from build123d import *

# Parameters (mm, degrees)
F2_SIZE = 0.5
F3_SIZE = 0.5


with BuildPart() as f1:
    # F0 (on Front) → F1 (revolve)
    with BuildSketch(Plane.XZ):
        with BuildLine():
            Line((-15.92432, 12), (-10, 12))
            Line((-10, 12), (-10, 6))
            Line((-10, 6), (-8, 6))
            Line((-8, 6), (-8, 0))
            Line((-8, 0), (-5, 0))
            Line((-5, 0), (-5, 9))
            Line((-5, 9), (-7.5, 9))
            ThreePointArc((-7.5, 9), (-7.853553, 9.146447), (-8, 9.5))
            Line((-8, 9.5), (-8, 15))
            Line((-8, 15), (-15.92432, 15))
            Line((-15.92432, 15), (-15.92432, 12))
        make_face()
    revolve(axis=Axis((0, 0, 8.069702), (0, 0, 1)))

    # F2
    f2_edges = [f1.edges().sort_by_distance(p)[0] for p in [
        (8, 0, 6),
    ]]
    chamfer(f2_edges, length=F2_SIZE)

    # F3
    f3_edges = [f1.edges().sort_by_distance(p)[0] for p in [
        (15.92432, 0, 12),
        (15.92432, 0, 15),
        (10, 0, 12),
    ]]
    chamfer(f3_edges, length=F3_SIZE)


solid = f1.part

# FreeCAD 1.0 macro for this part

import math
import FreeCAD as App
import Part
import Sketcher
Q = App.Units.Quantity


def edges_at(feature, points):
    """Names of the edges that pass closest to the given points."""
    edges = feature.Shape.Edges
    near = lambda p: min(range(len(edges)), key=lambda i: edges[i].distToShape(Part.Vertex(*p))[0])
    return sorted({f"Edge{near(p) + 1}" for p in points})

doc = App.newDocument("Part")
body = doc.addObject("PartDesign::Body", "Body")

sketch1 = doc.addObject("Sketcher::SketchObject", "Sketch")
body.addObject(sketch1)
sketch1.AttachmentSupport = (doc.XZ_Plane, [""])
sketch1.MapMode = "FlatFace"
sketch1.addGeometry([
    Part.LineSegment(App.Vector(-15.9, 12, 0), App.Vector(-10, 12, 0)),
    Part.LineSegment(App.Vector(-10, 12, 0), App.Vector(-10, 6, 0)),
    Part.LineSegment(App.Vector(-10, 6, 0), App.Vector(-8, 6, 0)),
    Part.LineSegment(App.Vector(-8, 6, 0), App.Vector(-8, 0, 0)),
    Part.LineSegment(App.Vector(-8, 0, 0), App.Vector(-5, 0, 0)),
    Part.LineSegment(App.Vector(-5, 0, 0), App.Vector(-5, 9, 0)),
    Part.LineSegment(App.Vector(-5, 9, 0), App.Vector(-7.5, 9, 0)),
    Part.ArcOfCircle(Part.Circle(App.Vector(-7.5, 9.5, 0), App.Vector(0, 0, 1), 0.5), math.radians(-180), math.radians(-90)),
    Part.LineSegment(App.Vector(-8, 9.5, 0), App.Vector(-8, 15, 0)),
    Part.LineSegment(App.Vector(-8, 15, 0), App.Vector(-15.9, 15, 0)),
    Part.LineSegment(App.Vector(-15.9, 15, 0), App.Vector(-15.9, 12, 0)),
], False)
sketch1.addConstraint([
    Sketcher.Constraint("Coincident", 0, 2, 1, 1),
    Sketcher.Constraint("Coincident", 1, 2, 2, 1),
    Sketcher.Constraint("Coincident", 2, 2, 3, 1),
    Sketcher.Constraint("Coincident", 3, 2, 4, 1),
    Sketcher.Constraint("Coincident", 4, 2, 5, 1),
    Sketcher.Constraint("Coincident", 5, 2, 6, 1),
    Sketcher.Constraint("Coincident", 6, 2, 7, 2),
    Sketcher.Constraint("Coincident", 7, 1, 8, 1),
    Sketcher.Constraint("Coincident", 8, 2, 9, 1),
    Sketcher.Constraint("Coincident", 9, 2, 10, 1),
    Sketcher.Constraint("Coincident", 10, 2, 0, 1),
    Sketcher.Constraint("Horizontal", 0),
    Sketcher.Constraint("Vertical", 1),
    Sketcher.Constraint("Horizontal", 2),
    Sketcher.Constraint("Vertical", 3),
    Sketcher.Constraint("Horizontal", 4),
    Sketcher.Constraint("Vertical", 5),
    Sketcher.Constraint("Horizontal", 6),
    Sketcher.Constraint("Vertical", 8),
    Sketcher.Constraint("Horizontal", 9),
    Sketcher.Constraint("Vertical", 10),
    Sketcher.Constraint("PointOnObject", 3, 2, -1),
    Sketcher.Constraint("Vertical", 7, 3, 6, 2),
    Sketcher.Constraint("Vertical", 3, 2, 7, 1),
    Sketcher.Constraint("Equal", 1, 3),
    Sketcher.Constraint("Equal", 4, 10),
    Sketcher.Constraint("Radius", 7, Q("0.500001 mm")),
    Sketcher.Constraint("DistanceX", 2, 1, 2, 2, Q("2 mm")),
    Sketcher.Constraint("DistanceX", 4, 1, 4, 2, Q("3 mm")),
    Sketcher.Constraint("DistanceY", 1, 2, 1, 1, Q("6 mm")),
    Sketcher.Constraint("DistanceY", 5, 1, 5, 2, Q("9 mm")),
    Sketcher.Constraint("DistanceY", 8, 1, 8, 2, Q("5.5 mm")),
    Sketcher.Constraint("DistanceX", 0, 2, -1, 1, Q("10 mm")),
    Sketcher.Constraint("DistanceX", 0, 1, 0, 2, Q("5.92432 mm")),
])
revolution = doc.addObject("PartDesign::Revolution", "Revolution")
body.addObject(revolution)
revolution.Profile = sketch1
revolution.ReferenceAxis = (sketch1, ["V_Axis"])
revolution.Angle = 360
doc.recompute()

chamfer = doc.addObject("PartDesign::Chamfer", "Chamfer")
body.addObject(chamfer)
chamfer.Base = (revolution, edges_at(revolution, [(8, 0, 6)]))
chamfer.Size = 0.5
doc.recompute()

chamfer2 = doc.addObject("PartDesign::Chamfer", "Chamfer001")
body.addObject(chamfer2)
chamfer2.Base = (chamfer, edges_at(chamfer, [(15.924, 0, 12), (15.924, 0, 15), (10, 0, 12)]))
chamfer2.Size = 0.5

doc.recompute()
